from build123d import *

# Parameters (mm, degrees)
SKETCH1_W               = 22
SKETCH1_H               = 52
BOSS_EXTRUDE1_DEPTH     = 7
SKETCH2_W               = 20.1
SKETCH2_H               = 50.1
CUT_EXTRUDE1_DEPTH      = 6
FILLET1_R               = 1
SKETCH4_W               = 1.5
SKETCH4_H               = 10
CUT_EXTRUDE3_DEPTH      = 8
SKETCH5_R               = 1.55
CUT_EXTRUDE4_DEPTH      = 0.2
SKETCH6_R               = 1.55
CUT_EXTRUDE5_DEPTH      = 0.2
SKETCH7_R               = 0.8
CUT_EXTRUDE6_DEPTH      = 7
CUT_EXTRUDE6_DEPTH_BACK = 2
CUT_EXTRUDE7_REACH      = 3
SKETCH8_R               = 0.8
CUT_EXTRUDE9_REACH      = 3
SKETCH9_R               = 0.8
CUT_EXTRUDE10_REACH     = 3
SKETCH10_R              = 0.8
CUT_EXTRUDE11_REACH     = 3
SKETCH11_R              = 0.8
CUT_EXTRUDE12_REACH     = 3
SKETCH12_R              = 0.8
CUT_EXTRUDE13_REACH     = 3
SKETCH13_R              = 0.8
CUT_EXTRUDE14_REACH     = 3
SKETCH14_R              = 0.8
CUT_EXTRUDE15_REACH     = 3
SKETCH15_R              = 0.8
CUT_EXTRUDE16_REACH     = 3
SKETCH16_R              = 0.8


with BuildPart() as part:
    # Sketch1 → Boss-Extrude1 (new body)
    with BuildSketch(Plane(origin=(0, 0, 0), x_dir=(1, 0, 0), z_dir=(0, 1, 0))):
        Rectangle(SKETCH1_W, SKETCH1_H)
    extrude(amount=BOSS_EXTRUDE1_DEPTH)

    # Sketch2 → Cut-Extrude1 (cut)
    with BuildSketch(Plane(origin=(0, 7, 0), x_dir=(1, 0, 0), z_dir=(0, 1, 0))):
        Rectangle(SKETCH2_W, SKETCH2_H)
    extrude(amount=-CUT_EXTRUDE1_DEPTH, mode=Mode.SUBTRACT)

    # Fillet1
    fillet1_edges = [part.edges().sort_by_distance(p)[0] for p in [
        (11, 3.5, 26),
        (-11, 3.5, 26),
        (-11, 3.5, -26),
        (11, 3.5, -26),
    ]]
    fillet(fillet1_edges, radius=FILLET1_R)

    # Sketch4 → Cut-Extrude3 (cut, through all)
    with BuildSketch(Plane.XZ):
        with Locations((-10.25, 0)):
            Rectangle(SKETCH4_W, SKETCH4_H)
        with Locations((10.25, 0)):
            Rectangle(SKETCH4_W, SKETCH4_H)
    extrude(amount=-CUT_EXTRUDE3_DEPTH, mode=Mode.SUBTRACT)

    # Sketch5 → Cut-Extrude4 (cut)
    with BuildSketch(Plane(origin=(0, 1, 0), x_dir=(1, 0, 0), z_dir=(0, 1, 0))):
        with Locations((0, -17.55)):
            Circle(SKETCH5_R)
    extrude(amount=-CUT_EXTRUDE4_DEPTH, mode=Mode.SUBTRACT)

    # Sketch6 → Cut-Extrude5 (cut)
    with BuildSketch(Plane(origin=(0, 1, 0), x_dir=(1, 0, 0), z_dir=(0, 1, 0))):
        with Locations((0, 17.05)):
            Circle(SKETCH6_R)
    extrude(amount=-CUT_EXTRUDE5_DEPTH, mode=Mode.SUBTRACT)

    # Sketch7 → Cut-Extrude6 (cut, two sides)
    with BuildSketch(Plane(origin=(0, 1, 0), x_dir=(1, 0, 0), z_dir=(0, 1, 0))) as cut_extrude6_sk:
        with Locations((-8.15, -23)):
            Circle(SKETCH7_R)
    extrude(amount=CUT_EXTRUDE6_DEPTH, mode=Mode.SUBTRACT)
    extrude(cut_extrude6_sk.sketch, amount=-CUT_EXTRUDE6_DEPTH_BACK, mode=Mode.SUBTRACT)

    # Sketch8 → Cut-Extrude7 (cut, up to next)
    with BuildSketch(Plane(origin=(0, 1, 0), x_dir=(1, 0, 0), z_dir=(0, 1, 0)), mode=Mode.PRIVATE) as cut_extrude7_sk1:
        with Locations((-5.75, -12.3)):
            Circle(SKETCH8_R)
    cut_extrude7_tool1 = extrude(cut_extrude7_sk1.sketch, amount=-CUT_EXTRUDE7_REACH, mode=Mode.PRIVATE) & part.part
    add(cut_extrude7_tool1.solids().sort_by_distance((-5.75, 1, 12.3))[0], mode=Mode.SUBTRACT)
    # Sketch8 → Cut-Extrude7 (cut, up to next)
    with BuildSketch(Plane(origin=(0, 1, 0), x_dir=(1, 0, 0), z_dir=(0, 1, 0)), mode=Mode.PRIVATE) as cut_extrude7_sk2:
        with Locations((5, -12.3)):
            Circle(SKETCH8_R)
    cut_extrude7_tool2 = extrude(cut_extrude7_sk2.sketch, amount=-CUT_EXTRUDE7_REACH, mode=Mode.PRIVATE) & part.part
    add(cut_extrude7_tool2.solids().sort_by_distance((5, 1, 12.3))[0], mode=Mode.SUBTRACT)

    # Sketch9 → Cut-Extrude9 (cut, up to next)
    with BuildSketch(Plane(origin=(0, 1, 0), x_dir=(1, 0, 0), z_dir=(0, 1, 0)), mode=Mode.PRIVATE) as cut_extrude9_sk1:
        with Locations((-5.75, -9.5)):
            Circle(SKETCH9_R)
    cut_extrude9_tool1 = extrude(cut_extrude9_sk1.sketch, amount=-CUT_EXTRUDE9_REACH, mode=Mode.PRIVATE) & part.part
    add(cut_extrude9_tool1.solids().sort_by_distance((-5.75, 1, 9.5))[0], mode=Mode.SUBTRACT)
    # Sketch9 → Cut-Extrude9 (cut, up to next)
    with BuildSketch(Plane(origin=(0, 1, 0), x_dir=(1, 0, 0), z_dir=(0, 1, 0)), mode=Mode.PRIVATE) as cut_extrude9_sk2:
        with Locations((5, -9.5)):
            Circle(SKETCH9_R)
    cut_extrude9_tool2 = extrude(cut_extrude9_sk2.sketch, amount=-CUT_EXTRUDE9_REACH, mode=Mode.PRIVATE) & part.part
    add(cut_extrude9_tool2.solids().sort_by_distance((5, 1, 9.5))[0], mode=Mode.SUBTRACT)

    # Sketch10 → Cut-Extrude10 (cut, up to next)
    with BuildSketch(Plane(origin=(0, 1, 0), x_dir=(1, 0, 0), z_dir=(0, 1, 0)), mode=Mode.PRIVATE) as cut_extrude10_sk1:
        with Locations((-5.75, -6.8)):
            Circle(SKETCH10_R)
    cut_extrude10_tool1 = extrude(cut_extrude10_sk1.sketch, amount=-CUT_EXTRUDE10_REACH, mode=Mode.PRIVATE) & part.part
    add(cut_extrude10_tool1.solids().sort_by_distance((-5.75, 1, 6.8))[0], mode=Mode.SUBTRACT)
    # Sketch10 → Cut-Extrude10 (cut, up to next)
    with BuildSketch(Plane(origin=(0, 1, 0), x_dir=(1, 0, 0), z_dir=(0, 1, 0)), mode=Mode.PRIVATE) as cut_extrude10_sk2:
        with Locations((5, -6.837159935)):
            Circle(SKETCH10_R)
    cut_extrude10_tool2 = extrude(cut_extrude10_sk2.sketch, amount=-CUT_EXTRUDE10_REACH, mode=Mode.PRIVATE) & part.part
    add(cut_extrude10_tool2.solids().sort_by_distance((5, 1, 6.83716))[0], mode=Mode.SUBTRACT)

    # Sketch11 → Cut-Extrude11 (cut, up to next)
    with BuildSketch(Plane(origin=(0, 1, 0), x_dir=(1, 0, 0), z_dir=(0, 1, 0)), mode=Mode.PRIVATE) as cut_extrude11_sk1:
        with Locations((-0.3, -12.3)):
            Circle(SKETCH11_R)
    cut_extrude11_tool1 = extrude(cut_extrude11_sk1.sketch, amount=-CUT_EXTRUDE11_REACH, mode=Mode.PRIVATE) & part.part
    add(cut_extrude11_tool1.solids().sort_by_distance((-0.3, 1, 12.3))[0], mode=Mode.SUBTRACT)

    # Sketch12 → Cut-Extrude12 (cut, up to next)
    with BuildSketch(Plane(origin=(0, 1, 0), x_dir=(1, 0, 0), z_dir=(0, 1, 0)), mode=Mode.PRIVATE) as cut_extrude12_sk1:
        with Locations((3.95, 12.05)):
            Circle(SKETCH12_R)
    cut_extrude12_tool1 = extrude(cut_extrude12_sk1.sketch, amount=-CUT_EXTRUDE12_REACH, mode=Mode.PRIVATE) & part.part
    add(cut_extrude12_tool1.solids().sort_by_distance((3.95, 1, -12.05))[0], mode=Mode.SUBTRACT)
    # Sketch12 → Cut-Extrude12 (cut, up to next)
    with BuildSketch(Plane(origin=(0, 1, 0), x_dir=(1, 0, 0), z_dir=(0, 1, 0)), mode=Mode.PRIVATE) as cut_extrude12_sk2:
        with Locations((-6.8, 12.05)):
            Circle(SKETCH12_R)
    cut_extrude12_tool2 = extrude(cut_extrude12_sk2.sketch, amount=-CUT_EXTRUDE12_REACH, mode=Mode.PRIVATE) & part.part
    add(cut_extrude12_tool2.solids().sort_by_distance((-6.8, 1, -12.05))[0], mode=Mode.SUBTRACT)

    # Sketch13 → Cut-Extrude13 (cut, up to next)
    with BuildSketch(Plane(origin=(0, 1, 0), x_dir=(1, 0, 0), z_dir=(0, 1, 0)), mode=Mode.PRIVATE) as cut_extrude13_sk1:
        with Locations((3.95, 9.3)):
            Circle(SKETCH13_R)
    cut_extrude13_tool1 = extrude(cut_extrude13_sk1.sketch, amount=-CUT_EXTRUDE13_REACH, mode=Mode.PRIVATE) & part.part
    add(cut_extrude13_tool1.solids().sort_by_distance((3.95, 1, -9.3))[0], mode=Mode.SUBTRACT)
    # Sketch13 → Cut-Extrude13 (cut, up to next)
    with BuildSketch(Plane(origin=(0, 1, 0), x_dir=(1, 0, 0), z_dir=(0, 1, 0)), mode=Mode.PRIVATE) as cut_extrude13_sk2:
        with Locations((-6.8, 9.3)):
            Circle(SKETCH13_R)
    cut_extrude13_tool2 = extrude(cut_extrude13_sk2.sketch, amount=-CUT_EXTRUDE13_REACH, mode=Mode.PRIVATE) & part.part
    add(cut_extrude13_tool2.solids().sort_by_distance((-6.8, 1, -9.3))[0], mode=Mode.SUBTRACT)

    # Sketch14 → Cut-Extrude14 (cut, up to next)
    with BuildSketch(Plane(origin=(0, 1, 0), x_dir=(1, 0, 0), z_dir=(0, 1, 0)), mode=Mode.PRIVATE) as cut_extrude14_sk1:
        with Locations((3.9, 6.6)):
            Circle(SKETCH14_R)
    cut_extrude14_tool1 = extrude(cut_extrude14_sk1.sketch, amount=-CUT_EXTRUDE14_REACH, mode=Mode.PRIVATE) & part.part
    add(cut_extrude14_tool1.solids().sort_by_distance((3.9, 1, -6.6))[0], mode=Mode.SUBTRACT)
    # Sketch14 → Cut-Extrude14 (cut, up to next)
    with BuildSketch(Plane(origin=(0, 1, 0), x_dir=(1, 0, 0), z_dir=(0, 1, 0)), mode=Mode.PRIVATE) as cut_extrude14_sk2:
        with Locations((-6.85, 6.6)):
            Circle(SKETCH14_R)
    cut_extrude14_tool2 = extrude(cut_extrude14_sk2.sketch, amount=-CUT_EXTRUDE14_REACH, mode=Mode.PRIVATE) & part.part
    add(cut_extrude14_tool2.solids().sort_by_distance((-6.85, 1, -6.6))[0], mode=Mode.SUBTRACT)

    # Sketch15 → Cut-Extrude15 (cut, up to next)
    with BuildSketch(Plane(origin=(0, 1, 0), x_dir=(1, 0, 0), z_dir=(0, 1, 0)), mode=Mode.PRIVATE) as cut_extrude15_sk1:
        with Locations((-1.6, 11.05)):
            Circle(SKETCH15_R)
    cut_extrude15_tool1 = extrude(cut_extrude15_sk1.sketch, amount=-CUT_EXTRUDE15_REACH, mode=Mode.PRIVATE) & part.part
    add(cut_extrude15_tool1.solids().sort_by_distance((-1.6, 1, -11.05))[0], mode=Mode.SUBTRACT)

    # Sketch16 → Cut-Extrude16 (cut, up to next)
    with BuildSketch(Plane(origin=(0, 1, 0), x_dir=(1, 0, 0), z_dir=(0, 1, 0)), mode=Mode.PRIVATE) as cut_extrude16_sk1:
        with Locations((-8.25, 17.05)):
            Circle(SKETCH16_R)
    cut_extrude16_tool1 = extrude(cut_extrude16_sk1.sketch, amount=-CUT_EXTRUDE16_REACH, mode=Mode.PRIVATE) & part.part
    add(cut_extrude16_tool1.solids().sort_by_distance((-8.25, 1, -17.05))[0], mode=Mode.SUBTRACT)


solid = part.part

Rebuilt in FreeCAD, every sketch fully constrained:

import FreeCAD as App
import Part
import Sketcher


def edges_at(feature, points):
    """Names of the edges that pass closest to the given points."""
    edges = feature.Shape.Edges
    near = lambda p: min(range(len(edges)), key=lambda i: edges[i].distToShape(Part.Vertex(*p))[0])
    return sorted({f"Edge{near(p) + 1}" for p in points})

doc = App.newDocument("Part")
params = doc.addObject("Spreadsheet::Sheet", "Params")
for row, (alias, value) in enumerate([
    ("sketch1_width", "22 mm"),
    ("sketch1_height", "52 mm"),
    ("pad1_length", "7 mm"),
    ("sketch2_width", "20.1 mm"),
    ("sketch2_height", "50.1 mm"),
    ("pocket1_length", "6 mm"),
    ("fillet_radius", "1 mm"),
    ("sketch3_height", "10 mm"),
    ("sketch3_width", "1.5 mm"),
    ("sketch4_diameter", "3.1 mm"),
    ("pocket3_length", "0.2 mm"),
    ("sketch5_diameter", "3.1 mm"),
    ("pocket4_length", "0.2 mm"),
    ("sketch6_diameter", "1.6 mm"),
    ("sketch7_diameter", "1.6 mm"),
    ("sketch8_diameter", "1.6 mm"),
    ("sketch9_diameter", "1.6 mm"),
    ("sketch10_diameter", "1.6 mm"),
    ("sketch11_diameter", "1.6 mm"),
    ("sketch12_diameter", "1.6 mm"),
    ("sketch13_diameter", "1.6 mm"),
    ("sketch14_diameter", "1.6 mm"),
    ("sketch15_diameter", "1.6 mm"),
    ("sketch16_diameter", "1.6 mm"),
    ("sketch17_diameter", "1.6 mm"),
    ("sketch18_diameter", "1.6 mm"),
    ("sketch19_diameter", "1.6 mm"),
    ("sketch20_diameter", "1.6 mm"),
    ("sketch21_diameter", "1.6 mm"),
], start=1):
    params.set(f"A{row}", alias)
    params.set(f"B{row}", "=" + value)
    params.setAlias(f"B{row}", alias)

body = doc.addObject("PartDesign::Body", "Body")

sketch1 = doc.addObject("Sketcher::SketchObject", "Sketch")
body.addObject(sketch1)
sketch1.AttachmentSupport = (doc.XZ_Plane, [""])
sketch1.MapMode = "FlatFace"
sketch1.addGeometry([
    Part.LineSegment(App.Vector(-11, -26, 0), App.Vector(-11, 26, 0)),
    Part.LineSegment(App.Vector(-11, 26, 0), App.Vector(11, 26, 0)),
    Part.LineSegment(App.Vector(11, 26, 0), App.Vector(11, -26, 0)),
    Part.LineSegment(App.Vector(11, -26, 0), App.Vector(-11, -26, 0)),
], False)
sketch1.addConstraint([
    Sketcher.Constraint("Coincident", 0, 2, 1, 1),
    Sketcher.Constraint("Coincident", 1, 2, 2, 1),
    Sketcher.Constraint("Coincident", 2, 2, 3, 1),
    Sketcher.Constraint("Coincident", 3, 2, 0, 1),
    Sketcher.Constraint("Vertical", 0),
    Sketcher.Constraint("Horizontal", 1),
    Sketcher.Constraint("Vertical", 2),
    Sketcher.Constraint("Horizontal", 3),
    Sketcher.Constraint("Symmetric", 0, 2, 2, 2, -1, 1),
    Sketcher.Constraint("DistanceX", 1, 1, 1, 2, 22.0),
    Sketcher.Constraint("DistanceY", 0, 1, 0, 2, 52.0),
])
sketch1.setExpression("Constraints[9]", "Params.sketch1_width")
sketch1.setExpression("Constraints[10]", "Params.sketch1_height")
pad1 = doc.addObject("PartDesign::Pad", "Pad")
body.addObject(pad1)
pad1.Profile = sketch1
pad1.setExpression("Length", "Params.pad1_length")
pad1.Reversed = True

sketch2 = doc.addObject("Sketcher::SketchObject", "Sketch001")
body.addObject(sketch2)
sketch2.AttachmentSupport = (doc.XZ_Plane, [""])
sketch2.MapMode = "FlatFace"
sketch2.AttachmentOffset = App.Placement(App.Vector(0, 0, -7), App.Rotation())
sketch2.addGeometry([
    Part.LineSegment(App.Vector(-10, -25, 0), App.Vector(-10, 25, 0)),
    Part.LineSegment(App.Vector(-10, 25, 0), App.Vector(10, 25, 0)),
    Part.LineSegment(App.Vector(10, 25, 0), App.Vector(10, -25, 0)),
    Part.LineSegment(App.Vector(10, -25, 0), App.Vector(-10, -25, 0)),
], False)
sketch2.addConstraint([
    Sketcher.Constraint("Coincident", 0, 2, 1, 1),
    Sketcher.Constraint("Coincident", 1, 2, 2, 1),
    Sketcher.Constraint("Coincident", 2, 2, 3, 1),
    Sketcher.Constraint("Coincident", 3, 2, 0, 1),
    Sketcher.Constraint("Vertical", 0),
    Sketcher.Constraint("Horizontal", 1),
    Sketcher.Constraint("Vertical", 2),
    Sketcher.Constraint("Horizontal", 3),
    Sketcher.Constraint("Symmetric", 0, 2, 2, 2, -1, 1),
    Sketcher.Constraint("DistanceX", 1, 1, 1, 2, 20.1),
    Sketcher.Constraint("DistanceY", 0, 1, 0, 2, 50.1),
])
sketch2.setExpression("Constraints[9]", "Params.sketch2_width")
sketch2.setExpression("Constraints[10]", "Params.sketch2_height")
pocket1 = doc.addObject("PartDesign::Pocket", "Pocket")
body.addObject(pocket1)
pocket1.Profile = sketch2
pocket1.setExpression("Length", "Params.pocket1_length")
pocket1.Reversed = True
doc.recompute()

fillet = doc.addObject("PartDesign::Fillet", "Fillet")
body.addObject(fillet)
fillet.Base = (pocket1, edges_at(pocket1, [
    (11, 3.5, 26),
    (-11, 3.5, 26),
    (-11, 3.5, -26),
    (11, 3.5, -26),
]))
fillet.setExpression("Radius", "Params.fillet_radius")

sketch3 = doc.addObject("Sketcher::SketchObject", "Sketch002")
body.addObject(sketch3)
sketch3.AttachmentSupport = (doc.XZ_Plane, [""])
sketch3.MapMode = "FlatFace"
sketch3.addGeometry([
    Part.LineSegment(App.Vector(-11, 5, 0), App.Vector(-11, -5, 0)),
    Part.LineSegment(App.Vector(-11, -5, 0), App.Vector(-9.5, -5, 0)),
    Part.LineSegment(App.Vector(-9.5, -5, 0), App.Vector(-9.5, 5, 0)),
    Part.LineSegment(App.Vector(-9.5, 5, 0), App.Vector(-11, 5, 0)),
    Part.LineSegment(App.Vector(9.5, 5, 0), App.Vector(9.5, -5, 0)),
    Part.LineSegment(App.Vector(9.5, -5, 0), App.Vector(11, -5, 0)),
    Part.LineSegment(App.Vector(11, -5, 0), App.Vector(11, 5, 0)),
    Part.LineSegment(App.Vector(11, 5, 0), App.Vector(9.5, 5, 0)),
], False)
sketch3.addConstraint([
    Sketcher.Constraint("Coincident", 0, 2, 1, 1),
    Sketcher.Constraint("Coincident", 1, 2, 2, 1),
    Sketcher.Constraint("Coincident", 2, 2, 3, 1),
    Sketcher.Constraint("Coincident", 3, 2, 0, 1),
    Sketcher.Constraint("Coincident", 4, 2, 5, 1),
    Sketcher.Constraint("Coincident", 5, 2, 6, 1),
    Sketcher.Constraint("Coincident", 6, 2, 7, 1),
    Sketcher.Constraint("Coincident", 7, 2, 4, 1),
    Sketcher.Constraint("Vertical", 0),
    Sketcher.Constraint("Horizontal", 1),
    Sketcher.Constraint("Vertical", 2),
    Sketcher.Constraint("Horizontal", 3),
    Sketcher.Constraint("Vertical", 4),
    Sketcher.Constraint("Horizontal", 5),
    Sketcher.Constraint("Vertical", 6),
    Sketcher.Constraint("Horizontal", 7),
    Sketcher.Constraint("Symmetric", 2, 2, 4, 2, -1, 1),
    Sketcher.Constraint("Symmetric", 0, 2, 6, 2, -1, 1),
    Sketcher.Constraint("Horizontal", 1, 2, 4, 2),
    Sketcher.Constraint("DistanceY", 0, 2, 0, 1, 10.0),
    Sketcher.Constraint("DistanceX", 1, 1, 1, 2, 1.5),
    Sketcher.Constraint("DistanceX", 0, 2, -1, 1, 11.0),
])
sketch3.setExpression("Constraints[19]", "Params.sketch3_height")
sketch3.setExpression("Constraints[20]", "Params.sketch3_width")
pocket2 = doc.addObject("PartDesign::Pocket", "Pocket001")
body.addObject(pocket2)
pocket2.Profile = sketch3
pocket2.Type = "ThroughAll"

sketch4 = doc.addObject("Sketcher::SketchObject", "Sketch003")
body.addObject(sketch4)
sketch4.AttachmentSupport = (doc.XZ_Plane, [""])
sketch4.MapMode = "FlatFace"
sketch4.AttachmentOffset = App.Placement(App.Vector(0, 0, -1), App.Rotation())
sketch4.addGeometry(Part.Circle(App.Vector(0, 17.6, 0), App.Vector(0, 0, 1), 1.6), False)
sketch4.addConstraint([
    Sketcher.Constraint("PointOnObject", 0, 3, -2),
    Sketcher.Constraint("Diameter", 0, 3.1),
    Sketcher.Constraint("DistanceY", -1, 1, 0, 3, 17.55),
])
sketch4.setExpression("Constraints[1]", "Params.sketch4_diameter")
pocket3 = doc.addObject("PartDesign::Pocket", "Pocket002")
body.addObject(pocket3)
pocket3.Profile = sketch4
pocket3.setExpression("Length", "Params.pocket3_length")
pocket3.Reversed = True

sketch5 = doc.addObject("Sketcher::SketchObject", "Sketch004")
body.addObject(sketch5)
sketch5.AttachmentSupport = (doc.XZ_Plane, [""])
sketch5.MapMode = "FlatFace"
sketch5.AttachmentOffset = App.Placement(App.Vector(0, 0, -1), App.Rotation())
sketch5.addGeometry(Part.Circle(App.Vector(0, -17.1, 0), App.Vector(0, 0, 1), 1.6), False)
sketch5.addConstraint([
    Sketcher.Constraint("PointOnObject", 0, 3, -2),
    Sketcher.Constraint("Diameter", 0, 3.1),
    Sketcher.Constraint("DistanceY", 0, 3, -1, 1, 17.05),
])
sketch5.setExpression("Constraints[1]", "Params.sketch5_diameter")
pocket4 = doc.addObject("PartDesign::Pocket", "Pocket003")
body.addObject(pocket4)
pocket4.Profile = sketch5
pocket4.setExpression("Length", "Params.pocket4_length")
pocket4.Reversed = True

sketch6 = doc.addObject("Sketcher::SketchObject", "Sketch005")
body.addObject(sketch6)
sketch6.AttachmentSupport = (doc.XZ_Plane, [""])
sketch6.MapMode = "FlatFace"
sketch6.AttachmentOffset = App.Placement(App.Vector(0, 0, -1), App.Rotation())
sketch6.addGeometry(Part.Circle(App.Vector(-8.2, 23, 0), App.Vector(0, 0, 1), 0.8), False)
sketch6.addConstraint([
    Sketcher.Constraint("Diameter", 0, 1.6),
    Sketcher.Constraint("DistanceY", -1, 1, 0, 3, 23.0),
    Sketcher.Constraint("DistanceX", 0, 3, -1, 1, 8.15),
])
sketch6.setExpression("Constraints[0]", "Params.sketch6_diameter")
pocket5 = doc.addObject("PartDesign::Pocket", "Pocket004")
body.addObject(pocket5)
pocket5.Profile = sketch6
pocket5.Type = "ThroughAll"
pocket5.Midplane = True

sketch7 = doc.addObject("Sketcher::SketchObject", "Sketch006")
body.addObject(sketch7)
sketch7.AttachmentSupport = (doc.XZ_Plane, [""])
sketch7.MapMode = "FlatFace"
sketch7.AttachmentOffset = App.Placement(App.Vector(0, 0, -1), App.Rotation())
sketch7.addGeometry(Part.Circle(App.Vector(-5.8, 12.3, 0), App.Vector(0, 0, 1), 0.8), False)
sketch7.addConstraint([
    Sketcher.Constraint("Diameter", 0, 1.6),
    Sketcher.Constraint("DistanceY", -1, 1, 0, 3, 12.3),
    Sketcher.Constraint("DistanceX", 0, 3, -1, 1, 5.75),
])
sketch7.setExpression("Constraints[0]", "Params.sketch7_diameter")
pocket6 = doc.addObject("PartDesign::Pocket", "Pocket005")
body.addObject(pocket6)
pocket6.Profile = sketch7
pocket6.Type = "UpToFirst"
pocket6.Reversed = True

sketch8 = doc.addObject("Sketcher::SketchObject", "Sketch007")
body.addObject(sketch8)
sketch8.AttachmentSupport = (doc.XZ_Plane, [""])
sketch8.MapMode = "FlatFace"
sketch8.AttachmentOffset = App.Placement(App.Vector(0, 0, -1), App.Rotation())
sketch8.addGeometry(Part.Circle(App.Vector(5, 12.3, 0), App.Vector(0, 0, 1), 0.8), False)
sketch8.addConstraint([
    Sketcher.Constraint("Diameter", 0, 1.6),
    Sketcher.Constraint("DistanceX", -1, 1, 0, 3, 5.0),
    Sketcher.Constraint("DistanceY", -1, 1, 0, 3, 12.3),
])
sketch8.setExpression("Constraints[0]", "Params.sketch8_diameter")
pocket7 = doc.addObject("PartDesign::Pocket", "Pocket006")
body.addObject(pocket7)
pocket7.Profile = sketch8
pocket7.Type = "UpToFirst"
pocket7.Reversed = True

sketch9 = doc.addObject("Sketcher::SketchObject", "Sketch008")
body.addObject(sketch9)
sketch9.AttachmentSupport = (doc.XZ_Plane, [""])
sketch9.MapMode = "FlatFace"
sketch9.AttachmentOffset = App.Placement(App.Vector(0, 0, -1), App.Rotation())
sketch9.addGeometry(Part.Circle(App.Vector(-5.8, 9.5, 0), App.Vector(0, 0, 1), 0.8), False)
sketch9.addConstraint([
    Sketcher.Constraint("Diameter", 0, 1.6),
    Sketcher.Constraint("DistanceY", -1, 1, 0, 3, 9.5),
    Sketcher.Constraint("DistanceX", 0, 3, -1, 1, 5.75),
])
sketch9.setExpression("Constraints[0]", "Params.sketch9_diameter")
pocket8 = doc.addObject("PartDesign::Pocket", "Pocket007")
body.addObject(pocket8)
pocket8.Profile = sketch9
pocket8.Type = "UpToFirst"
pocket8.Reversed = True

sketch10 = doc.addObject("Sketcher::SketchObject", "Sketch009")
body.addObject(sketch10)
sketch10.AttachmentSupport = (doc.XZ_Plane, [""])
sketch10.MapMode = "FlatFace"
sketch10.AttachmentOffset = App.Placement(App.Vector(0, 0, -1), App.Rotation())
sketch10.addGeometry(Part.Circle(App.Vector(5, 9.5, 0), App.Vector(0, 0, 1), 0.8), False)
sketch10.addConstraint([
    Sketcher.Constraint("Diameter", 0, 1.6),
    Sketcher.Constraint("DistanceX", -1, 1, 0, 3, 5.0),
    Sketcher.Constraint("DistanceY", -1, 1, 0, 3, 9.5),
])
sketch10.setExpression("Constraints[0]", "Params.sketch10_diameter")
pocket9 = doc.addObject("PartDesign::Pocket", "Pocket008")
body.addObject(pocket9)
pocket9.Profile = sketch10
pocket9.Type = "UpToFirst"
pocket9.Reversed = True

sketch11 = doc.addObject("Sketcher::SketchObject", "Sketch010")
body.addObject(sketch11)
sketch11.AttachmentSupport = (doc.XZ_Plane, [""])
sketch11.MapMode = "FlatFace"
sketch11.AttachmentOffset = App.Placement(App.Vector(0, 0, -1), App.Rotation())
sketch11.addGeometry(Part.Circle(App.Vector(-5.8, 6.8, 0), App.Vector(0, 0, 1), 0.8), False)
sketch11.addConstraint([
    Sketcher.Constraint("Diameter", 0, 1.6),
    Sketcher.Constraint("DistanceY", -1, 1, 0, 3, 6.8),
    Sketcher.Constraint("DistanceX", 0, 3, -1, 1, 5.75),
])
sketch11.setExpression("Constraints[0]", "Params.sketch11_diameter")
pocket10 = doc.addObject("PartDesign::Pocket", "Pocket009")
body.addObject(pocket10)
pocket10.Profile = sketch11
pocket10.Type = "UpToFirst"
pocket10.Reversed = True

sketch12 = doc.addObject("Sketcher::SketchObject", "Sketch011")
body.addObject(sketch12)
sketch12.AttachmentSupport = (doc.XZ_Plane, [""])
sketch12.MapMode = "FlatFace"
sketch12.AttachmentOffset = App.Placement(App.Vector(0, 0, -1), App.Rotation())
sketch12.addGeometry(Part.Circle(App.Vector(5, 6.8, 0), App.Vector(0, 0, 1), 0.8), False)
sketch12.addConstraint([
    Sketcher.Constraint("Diameter", 0, 1.6),
    Sketcher.Constraint("DistanceX", -1, 1, 0, 3, 5.0),
    Sketcher.Constraint("DistanceY", -1, 1, 0, 3, 6.83716),
])
sketch12.setExpression("Constraints[0]", "Params.sketch12_diameter")
pocket11 = doc.addObject("PartDesign::Pocket", "Pocket010")
body.addObject(pocket11)
pocket11.Profile = sketch12
pocket11.Type = "UpToFirst"
pocket11.Reversed = True

sketch13 = doc.addObject("Sketcher::SketchObject", "Sketch012")
body.addObject(sketch13)
sketch13.AttachmentSupport = (doc.XZ_Plane, [""])
sketch13.MapMode = "FlatFace"
sketch13.AttachmentOffset = App.Placement(App.Vector(0, 0, -1), App.Rotation())
sketch13.addGeometry(Part.Circle(App.Vector(-0.3, 12.3, 0), App.Vector(0, 0, 1), 0.8), False)
sketch13.addConstraint([
    Sketcher.Constraint("Diameter", 0, 1.6),
    Sketcher.Constraint("DistanceX", 0, 3, -1, 1, 0.3),
    Sketcher.Constraint("DistanceY", -1, 1, 0, 3, 12.3),
])
sketch13.setExpression("Constraints[0]", "Params.sketch13_diameter")
pocket12 = doc.addObject("PartDesign::Pocket", "Pocket011")
body.addObject(pocket12)
pocket12.Profile = sketch13
pocket12.Type = "UpToFirst"
pocket12.Reversed = True

sketch14 = doc.addObject("Sketcher::SketchObject", "Sketch013")
body.addObject(sketch14)
sketch14.AttachmentSupport = (doc.XZ_Plane, [""])
sketch14.MapMode = "FlatFace"
sketch14.AttachmentOffset = App.Placement(App.Vector(0, 0, -1), App.Rotation())
sketch14.addGeometry(Part.Circle(App.Vector(4, -12.1, 0), App.Vector(0, 0, 1), 0.8), False)
sketch14.addConstraint([
    Sketcher.Constraint("Diameter", 0, 1.6),
    Sketcher.Constraint("DistanceX", -1, 1, 0, 3, 3.95),
    Sketcher.Constraint("DistanceY", 0, 3, -1, 1, 12.05),
])
sketch14.setExpression("Constraints[0]", "Params.sketch14_diameter")
pocket13 = doc.addObject("PartDesign::Pocket", "Pocket012")
body.addObject(pocket13)
pocket13.Profile = sketch14
pocket13.Type = "UpToFirst"
pocket13.Reversed = True

sketch15 = doc.addObject("Sketcher::SketchObject", "Sketch014")
body.addObject(sketch15)
sketch15.AttachmentSupport = (doc.XZ_Plane, [""])
sketch15.MapMode = "FlatFace"
sketch15.AttachmentOffset = App.Placement(App.Vector(0, 0, -1), App.Rotation())
sketch15.addGeometry(Part.Circle(App.Vector(-6.8, -12.1, 0), App.Vector(0, 0, 1), 0.8), False)
sketch15.addConstraint([
    Sketcher.Constraint("Diameter", 0, 1.6),
    Sketcher.Constraint("DistanceX", 0, 3, -1, 1, 6.8),
    Sketcher.Constraint("DistanceY", 0, 3, -1, 1, 12.05),
])
sketch15.setExpression("Constraints[0]", "Params.sketch15_diameter")
pocket14 = doc.addObject("PartDesign::Pocket", "Pocket013")
body.addObject(pocket14)
pocket14.Profile = sketch15
pocket14.Type = "UpToFirst"
pocket14.Reversed = True

sketch16 = doc.addObject("Sketcher::SketchObject", "Sketch015")
body.addObject(sketch16)
sketch16.AttachmentSupport = (doc.XZ_Plane, [""])
sketch16.MapMode = "FlatFace"
sketch16.AttachmentOffset = App.Placement(App.Vector(0, 0, -1), App.Rotation())
sketch16.addGeometry(Part.Circle(App.Vector(4, -9.3, 0), App.Vector(0, 0, 1), 0.8), False)
sketch16.addConstraint([
    Sketcher.Constraint("Diameter", 0, 1.6),
    Sketcher.Constraint("DistanceY", 0, 3, -1, 1, 9.3),
    Sketcher.Constraint("DistanceX", -1, 1, 0, 3, 3.95),
])
sketch16.setExpression("Constraints[0]", "Params.sketch16_diameter")
pocket15 = doc.addObject("PartDesign::Pocket", "Pocket014")
body.addObject(pocket15)
pocket15.Profile = sketch16
pocket15.Type = "UpToFirst"
pocket15.Reversed = True

sketch17 = doc.addObject("Sketcher::SketchObject", "Sketch016")
body.addObject(sketch17)
sketch17.AttachmentSupport = (doc.XZ_Plane, [""])
sketch17.MapMode = "FlatFace"
sketch17.AttachmentOffset = App.Placement(App.Vector(0, 0, -1), App.Rotation())
sketch17.addGeometry(Part.Circle(App.Vector(-6.8, -9.3, 0), App.Vector(0, 0, 1), 0.8), False)
sketch17.addConstraint([
    Sketcher.Constraint("Diameter", 0, 1.6),
    Sketcher.Constraint("DistanceX", 0, 3, -1, 1, 6.8),
    Sketcher.Constraint("DistanceY", 0, 3, -1, 1, 9.3),
])
sketch17.setExpression("Constraints[0]", "Params.sketch17_diameter")
pocket16 = doc.addObject("PartDesign::Pocket", "Pocket015")
body.addObject(pocket16)
pocket16.Profile = sketch17
pocket16.Type = "UpToFirst"
pocket16.Reversed = True

sketch18 = doc.addObject("Sketcher::SketchObject", "Sketch017")
body.addObject(sketch18)
sketch18.AttachmentSupport = (doc.XZ_Plane, [""])
sketch18.MapMode = "FlatFace"
sketch18.AttachmentOffset = App.Placement(App.Vector(0, 0, -1), App.Rotation())
sketch18.addGeometry(Part.Circle(App.Vector(3.9, -6.6, 0), App.Vector(0, 0, 1), 0.8), False)
sketch18.addConstraint([
    Sketcher.Constraint("Diameter", 0, 1.6),
    Sketcher.Constraint("DistanceX", -1, 1, 0, 3, 3.9),
    Sketcher.Constraint("DistanceY", 0, 3, -1, 1, 6.6),
])
sketch18.setExpression("Constraints[0]", "Params.sketch18_diameter")
pocket17 = doc.addObject("PartDesign::Pocket", "Pocket016")
body.addObject(pocket17)
pocket17.Profile = sketch18
pocket17.Type = "UpToFirst"
pocket17.Reversed = True

sketch19 = doc.addObject("Sketcher::SketchObject", "Sketch018")
body.addObject(sketch19)
sketch19.AttachmentSupport = (doc.XZ_Plane, [""])
sketch19.MapMode = "FlatFace"
sketch19.AttachmentOffset = App.Placement(App.Vector(0, 0, -1), App.Rotation())
sketch19.addGeometry(Part.Circle(App.Vector(-6.8, -6.6, 0), App.Vector(0, 0, 1), 0.8), False)
sketch19.addConstraint([
    Sketcher.Constraint("Diameter", 0, 1.6),
    Sketcher.Constraint("DistanceY", 0, 3, -1, 1, 6.6),
    Sketcher.Constraint("DistanceX", 0, 3, -1, 1, 6.85),
])
sketch19.setExpression("Constraints[0]", "Params.sketch19_diameter")
pocket18 = doc.addObject("PartDesign::Pocket", "Pocket017")
body.addObject(pocket18)
pocket18.Profile = sketch19
pocket18.Type = "UpToFirst"
pocket18.Reversed = True

sketch20 = doc.addObject("Sketcher::SketchObject", "Sketch019")
body.addObject(sketch20)
sketch20.AttachmentSupport = (doc.XZ_Plane, [""])
sketch20.MapMode = "FlatFace"
sketch20.AttachmentOffset = App.Placement(App.Vector(0, 0, -1), App.Rotation())
sketch20.addGeometry(Part.Circle(App.Vector(-1.6, -11.1, 0), App.Vector(0, 0, 1), 0.8), False)
sketch20.addConstraint([
    Sketcher.Constraint("Diameter", 0, 1.6),
    Sketcher.Constraint("DistanceX", 0, 3, -1, 1, 1.6),
    Sketcher.Constraint("DistanceY", 0, 3, -1, 1, 11.05),
])
sketch20.setExpression("Constraints[0]", "Params.sketch20_diameter")
pocket19 = doc.addObject("PartDesign::Pocket", "Pocket018")
body.addObject(pocket19)
pocket19.Profile = sketch20
pocket19.Type = "UpToFirst"
pocket19.Reversed = True

sketch21 = doc.addObject("Sketcher::SketchObject", "Sketch020")
body.addObject(sketch21)
sketch21.AttachmentSupport = (doc.XZ_Plane, [""])
sketch21.MapMode = "FlatFace"
sketch21.AttachmentOffset = App.Placement(App.Vector(0, 0, -1), App.Rotation())
sketch21.addGeometry(Part.Circle(App.Vector(-8.2, -17.1, 0), App.Vector(0, 0, 1), 0.8), False)
sketch21.addConstraint([
    Sketcher.Constraint("Diameter", 0, 1.6),
    Sketcher.Constraint("DistanceX", 0, 3, -1, 1, 8.25),
    Sketcher.Constraint("DistanceY", 0, 3, -1, 1, 17.05),
])
sketch21.setExpression("Constraints[0]", "Params.sketch21_diameter")
pocket20 = doc.addObject("PartDesign::Pocket", "Pocket019")
body.addObject(pocket20)
pocket20.Profile = sketch21
pocket20.Type = "UpToFirst"
pocket20.Reversed = True

doc.recompute()
